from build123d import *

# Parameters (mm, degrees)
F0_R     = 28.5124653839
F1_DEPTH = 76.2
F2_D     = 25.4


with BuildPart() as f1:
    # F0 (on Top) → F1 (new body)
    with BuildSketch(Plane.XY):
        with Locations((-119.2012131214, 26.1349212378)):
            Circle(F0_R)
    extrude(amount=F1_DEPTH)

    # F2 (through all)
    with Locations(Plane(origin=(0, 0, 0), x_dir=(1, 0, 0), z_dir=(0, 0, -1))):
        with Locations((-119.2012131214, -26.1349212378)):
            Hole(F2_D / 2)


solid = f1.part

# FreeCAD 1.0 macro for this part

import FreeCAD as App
import Part
import Sketcher
Q = App.Units.Quantity

doc = App.newDocument("Part")
body = doc.addObject("PartDesign::Body", "Body")

sketch1 = body.newObject("Sketcher::SketchObject", "Sketch")
sketch1.AttachmentSupport = (doc.getObject("XY_Plane"), [""])
sketch1.MapMode = "FlatFace"
sketch1.addGeometry(Part.Circle(App.Vector(-119, 26, 0), App.Vector(0, 0, 1), 29), False)
sketch1.addConstraint([
    Sketcher.Constraint("Diameter", 0, 57.024931),
    Sketcher.Constraint("DistanceY", -1, 1, 0, 3, 26.134921),
    Sketcher.Constraint("DistanceX", 0, 3, -1, 1, 119.201213),
])
pad1 = body.newObject("PartDesign::Pad", "Pad")
pad1.Profile = sketch1
pad1.Length = Q("3 in")

sketch2 = body.newObject("Sketcher::SketchObject", "Sketch001")
sketch2.AttachmentSupport = (doc.getObject("XY_Plane"), [""])
sketch2.MapMode = "FlatFace"
sketch2.addGeometry(Part.Circle(App.Vector(-119, 26, 0), App.Vector(0, 0, 1), 13), False)
sketch2.addConstraint([
    Sketcher.Constraint("Diameter", 0, Q("1 in")),
    Sketcher.Constraint("DistanceY", -1, 1, 0, 3, 26.134921),
    Sketcher.Constraint("DistanceX", 0, 3, -1, 1, 119.201213),
])
doc.recompute()
hole = body.newObject("PartDesign::Hole", "Hole")
hole.Profile = sketch2
hole.ThreadType = "None"
hole.Diameter = Q("1 in")
hole.DepthType = "ThroughAll"
hole.Reversed = True

doc.recompute()
